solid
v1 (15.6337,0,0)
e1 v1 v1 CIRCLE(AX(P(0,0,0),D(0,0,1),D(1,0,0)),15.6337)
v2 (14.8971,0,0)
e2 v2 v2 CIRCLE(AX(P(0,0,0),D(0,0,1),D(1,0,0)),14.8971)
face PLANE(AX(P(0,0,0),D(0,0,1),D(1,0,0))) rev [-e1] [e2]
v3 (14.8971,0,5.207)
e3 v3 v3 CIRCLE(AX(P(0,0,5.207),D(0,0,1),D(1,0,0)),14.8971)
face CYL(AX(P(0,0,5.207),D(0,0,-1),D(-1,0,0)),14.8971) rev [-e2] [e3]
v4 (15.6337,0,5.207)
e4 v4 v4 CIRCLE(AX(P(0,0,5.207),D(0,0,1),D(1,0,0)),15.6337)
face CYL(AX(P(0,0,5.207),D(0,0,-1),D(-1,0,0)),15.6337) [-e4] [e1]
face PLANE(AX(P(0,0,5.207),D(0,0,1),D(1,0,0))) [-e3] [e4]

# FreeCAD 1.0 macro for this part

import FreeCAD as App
import Part
import Sketcher
from FreeCAD import Vector
Q = App.Units.Quantity

doc = App.newDocument("Part")
body = doc.addObject("PartDesign::Body", "Body")

sketch1 = body.newObject("Sketcher::SketchObject", "Sketch")
sketch1.AttachmentSupport = (doc.getObject("XY_Plane"), [""])
sketch1.MapMode = "FlatFace"
sketch1.addGeometry([
    Part.Circle(Vector(0, 0, 0), Vector(0, 0, 1), 16),
    Part.Circle(Vector(0, 0, 0), Vector(0, 0, 1), 15),
], False)
sketch1.addConstraint([
    Sketcher.Constraint("Coincident", 0, 3, -1, 1),
    Sketcher.Constraint("Coincident", 1, 3, -1, 1),
    Sketcher.Constraint("Diameter", 0, Q("1.231 in")),
    Sketcher.Constraint("Diameter", 1, Q("1.173 in")),
])
pad1 = body.newObject("PartDesign::Pad", "Pad")
pad1.Profile = sketch1
pad1.Length = Q("0.205 in")

doc.recompute()
